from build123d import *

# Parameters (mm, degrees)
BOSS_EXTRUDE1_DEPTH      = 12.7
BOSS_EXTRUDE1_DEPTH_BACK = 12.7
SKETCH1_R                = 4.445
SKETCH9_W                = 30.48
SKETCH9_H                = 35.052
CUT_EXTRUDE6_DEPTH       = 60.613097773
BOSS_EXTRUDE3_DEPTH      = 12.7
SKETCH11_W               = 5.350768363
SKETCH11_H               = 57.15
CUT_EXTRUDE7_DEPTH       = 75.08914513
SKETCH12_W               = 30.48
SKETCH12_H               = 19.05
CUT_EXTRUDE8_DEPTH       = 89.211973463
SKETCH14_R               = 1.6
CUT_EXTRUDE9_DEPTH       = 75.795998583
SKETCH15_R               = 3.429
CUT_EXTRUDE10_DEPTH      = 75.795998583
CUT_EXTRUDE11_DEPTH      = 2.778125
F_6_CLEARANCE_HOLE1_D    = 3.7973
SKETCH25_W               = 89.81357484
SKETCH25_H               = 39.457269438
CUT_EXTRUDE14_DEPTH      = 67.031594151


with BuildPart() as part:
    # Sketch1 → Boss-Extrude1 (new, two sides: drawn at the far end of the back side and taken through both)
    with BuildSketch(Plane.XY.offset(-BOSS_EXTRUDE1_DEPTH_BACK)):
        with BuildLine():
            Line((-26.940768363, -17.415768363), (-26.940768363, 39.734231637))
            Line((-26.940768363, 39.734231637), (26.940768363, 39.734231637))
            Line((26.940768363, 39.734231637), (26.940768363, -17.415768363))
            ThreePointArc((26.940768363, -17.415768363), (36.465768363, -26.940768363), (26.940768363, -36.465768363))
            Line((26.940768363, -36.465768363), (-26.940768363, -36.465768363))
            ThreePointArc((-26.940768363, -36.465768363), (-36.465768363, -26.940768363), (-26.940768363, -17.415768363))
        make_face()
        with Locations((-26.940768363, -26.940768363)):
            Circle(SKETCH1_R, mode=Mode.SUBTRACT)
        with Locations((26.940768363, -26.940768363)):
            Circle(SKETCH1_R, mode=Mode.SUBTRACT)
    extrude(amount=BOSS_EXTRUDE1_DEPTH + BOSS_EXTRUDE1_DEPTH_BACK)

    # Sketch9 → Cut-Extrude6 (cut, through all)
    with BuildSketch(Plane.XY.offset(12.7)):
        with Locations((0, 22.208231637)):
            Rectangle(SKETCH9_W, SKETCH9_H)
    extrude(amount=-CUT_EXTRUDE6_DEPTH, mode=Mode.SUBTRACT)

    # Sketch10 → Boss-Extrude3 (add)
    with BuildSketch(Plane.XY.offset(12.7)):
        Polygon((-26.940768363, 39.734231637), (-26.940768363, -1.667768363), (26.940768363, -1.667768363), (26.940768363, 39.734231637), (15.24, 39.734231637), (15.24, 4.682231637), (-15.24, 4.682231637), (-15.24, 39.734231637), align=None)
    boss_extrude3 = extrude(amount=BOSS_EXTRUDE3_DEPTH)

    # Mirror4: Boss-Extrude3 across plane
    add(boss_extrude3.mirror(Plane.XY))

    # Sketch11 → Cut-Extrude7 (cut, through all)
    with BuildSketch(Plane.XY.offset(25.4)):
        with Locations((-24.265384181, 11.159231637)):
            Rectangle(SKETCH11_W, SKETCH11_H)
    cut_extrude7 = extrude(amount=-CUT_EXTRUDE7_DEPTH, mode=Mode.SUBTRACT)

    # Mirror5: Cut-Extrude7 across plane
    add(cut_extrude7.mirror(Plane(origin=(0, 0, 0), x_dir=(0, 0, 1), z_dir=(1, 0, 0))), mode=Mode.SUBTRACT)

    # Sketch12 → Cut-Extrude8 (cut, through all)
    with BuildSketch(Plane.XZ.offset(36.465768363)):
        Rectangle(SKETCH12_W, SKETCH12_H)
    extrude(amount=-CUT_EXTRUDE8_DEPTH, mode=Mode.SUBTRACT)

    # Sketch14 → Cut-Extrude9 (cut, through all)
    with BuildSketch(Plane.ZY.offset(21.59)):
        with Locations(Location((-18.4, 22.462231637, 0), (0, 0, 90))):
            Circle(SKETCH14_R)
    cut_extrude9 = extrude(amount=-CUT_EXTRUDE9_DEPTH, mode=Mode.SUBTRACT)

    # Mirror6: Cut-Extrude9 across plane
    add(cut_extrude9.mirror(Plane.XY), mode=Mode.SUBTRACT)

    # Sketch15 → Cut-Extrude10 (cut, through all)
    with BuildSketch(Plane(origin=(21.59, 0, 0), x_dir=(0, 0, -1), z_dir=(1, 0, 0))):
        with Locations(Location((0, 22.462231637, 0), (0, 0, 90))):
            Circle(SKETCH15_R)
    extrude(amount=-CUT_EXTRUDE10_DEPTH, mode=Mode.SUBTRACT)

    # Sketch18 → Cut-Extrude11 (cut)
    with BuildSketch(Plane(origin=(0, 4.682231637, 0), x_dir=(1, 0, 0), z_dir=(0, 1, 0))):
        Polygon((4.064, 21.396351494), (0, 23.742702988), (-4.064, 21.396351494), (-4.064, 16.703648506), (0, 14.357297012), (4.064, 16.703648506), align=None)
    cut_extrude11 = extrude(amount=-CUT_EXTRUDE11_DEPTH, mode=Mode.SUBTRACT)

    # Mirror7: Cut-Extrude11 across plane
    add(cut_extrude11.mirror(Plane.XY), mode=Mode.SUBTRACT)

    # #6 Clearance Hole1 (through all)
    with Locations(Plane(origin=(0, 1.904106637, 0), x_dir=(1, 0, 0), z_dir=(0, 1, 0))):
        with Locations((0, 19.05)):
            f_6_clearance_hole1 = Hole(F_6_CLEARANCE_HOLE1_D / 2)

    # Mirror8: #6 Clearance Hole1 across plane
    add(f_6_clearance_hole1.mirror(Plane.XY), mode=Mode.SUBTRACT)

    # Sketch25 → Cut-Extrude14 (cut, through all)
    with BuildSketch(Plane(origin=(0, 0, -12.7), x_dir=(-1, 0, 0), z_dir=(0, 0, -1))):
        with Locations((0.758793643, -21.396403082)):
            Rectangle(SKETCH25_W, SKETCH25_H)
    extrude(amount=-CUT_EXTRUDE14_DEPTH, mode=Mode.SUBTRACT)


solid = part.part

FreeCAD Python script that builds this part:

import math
import FreeCAD as App
import Part
import Sketcher

V = App.Vector
Q = App.Units.Quantity

doc = App.newDocument("Part")
body = doc.addObject("PartDesign::Body", "Body")

# Sketch on XY plane
sketch1 = body.newObject("Sketcher::SketchObject", "Sketch")
sketch1.AttachmentSupport = (doc.getObject("XY_Plane"), [""])
sketch1.MapMode = "FlatFace"
sketch1.addGeometry([
    Part.LineSegment(V(-26.9, 39.7, 0), V(-26.9, -17.4, 0)),  # 0
    Part.ArcOfCircle(Part.Circle(V(-26.9, -26.9, 0), V(0, 0, 1), 9.5), math.radians(90), math.radians(270)),  # 1
    Part.LineSegment(V(-26.9, -36.5, 0), V(26.9, -36.5, 0)),  # 2
    Part.ArcOfCircle(Part.Circle(V(26.9, -26.9, 0), V(0, 0, 1), 9.5), math.radians(-90), math.radians(90)),  # 3
    Part.LineSegment(V(26.9, -17.4, 0), V(26.9, 39.7, 0)),  # 4
    Part.LineSegment(V(26.9, 39.7, 0), V(-26.9, 39.7, 0)),  # 5
    Part.Circle(V(26.9, -26.9, 0), V(0, 0, 1), 4.4),  # 6
    Part.Circle(V(-26.9, -26.9, 0), V(0, 0, 1), 4.4),  # 7
], False)
sketch1.addConstraint([
    Sketcher.Constraint("Coincident", 0, 2, 1, 1),
    Sketcher.Constraint("Tangent", 1, 2, 2, 1),
    Sketcher.Constraint("Tangent", 2, 2, 3, 1),
    Sketcher.Constraint("Coincident", 3, 2, 4, 1),
    Sketcher.Constraint("Coincident", 4, 2, 5, 1),
    Sketcher.Constraint("Coincident", 5, 2, 0, 1),
    Sketcher.Constraint("Vertical", 0),
    Sketcher.Constraint("Horizontal", 2),
    Sketcher.Constraint("Vertical", 4),
    Sketcher.Constraint("Horizontal", 5),
    Sketcher.Constraint("Coincident", 6, 3, 3, 3),
    Sketcher.Constraint("Coincident", 7, 3, 1, 3),
    Sketcher.Constraint("Equal", 1, 3),
    Sketcher.Constraint("Equal", 6, 7),
    Sketcher.Constraint("Vertical", 7, 3, 0, 2),
    Sketcher.Constraint("Vertical", 2, 2, 3, 2),
    Sketcher.Constraint("Diameter", 6, Q("0.35 in")),
    Sketcher.Constraint("Radius", 1, Q("0.375 in")),
    Sketcher.Constraint("DistanceY", 2, 2, 4, 2, Q("3 in")),
    Sketcher.Constraint("DistanceX", 2, 1, 2, 2, 53.881537),
    Sketcher.Constraint("DistanceX", 1, 3, -1, 1, 26.940768),
    Sketcher.Constraint("DistanceY", 1, 3, -1, 1, 26.940768),
])
pad1 = body.newObject("PartDesign::Pad", "Pad")
pad1.Profile = sketch1
pad1.Type = "TwoLengths"
pad1.Length = Q("0.5 in")
pad1.Length2 = Q("0.5 in")

# Sketch on XY plane
sketch2 = body.newObject("Sketcher::SketchObject", "Sketch001")
sketch2.AttachmentSupport = (doc.getObject("XY_Plane"), [""])
sketch2.MapMode = "FlatFace"
sketch2.AttachmentOffset = App.Placement(V(0, 0, 0.5 * 25.4), App.Rotation())
sketch2.addGeometry([
    Part.LineSegment(V(-15, 40, 0), V(-15, 5, 0)),
    Part.LineSegment(V(-15, 5, 0), V(15, 5, 0)),
    Part.LineSegment(V(15, 5, 0), V(15, 40, 0)),
    Part.LineSegment(V(15, 40, 0), V(-15, 40, 0)),
], False)
sketch2.addConstraint([
    Sketcher.Constraint("Coincident", 0, 2, 1, 1),
    Sketcher.Constraint("Coincident", 1, 2, 2, 1),
    Sketcher.Constraint("Coincident", 2, 2, 3, 1),
    Sketcher.Constraint("Coincident", 3, 2, 0, 1),
    Sketcher.Constraint("Vertical", 0),
    Sketcher.Constraint("Horizontal", 1),
    Sketcher.Constraint("Vertical", 2),
    Sketcher.Constraint("Horizontal", 3),
    Sketcher.Constraint("DistanceX", 1, 1, 1, 2, Q("1.2 in")),
    Sketcher.Constraint("DistanceY", 0, 2, 0, 1, Q("1.38 in")),
    Sketcher.Constraint("DistanceX", 0, 2, -1, 1, Q("0.6 in")),
    Sketcher.Constraint("DistanceY", -1, 1, 0, 2, 4.682232),
])
pocket1 = body.newObject("PartDesign::Pocket", "Pocket")
pocket1.Profile = sketch2
pocket1.Type = "ThroughAll"

# Sketch on XY plane
sketch3 = body.newObject("Sketcher::SketchObject", "Sketch002")
sketch3.AttachmentSupport = (doc.getObject("XY_Plane"), [""])
sketch3.MapMode = "FlatFace"
sketch3.AttachmentOffset = App.Placement(V(0, 0, 0.5 * 25.4), App.Rotation())
sketch3.addGeometry([
    Part.LineSegment(V(-27, 40, 0), V(-27, -2, 0)),  # 0
    Part.LineSegment(V(-27, -2, 0), V(27, -2, 0)),  # 1
    Part.LineSegment(V(27, -2, 0), V(27, 40, 0)),  # 2
    Part.LineSegment(V(27, 40, 0), V(15, 40, 0)),  # 3
    Part.LineSegment(V(15, 40, 0), V(15, 5, 0)),  # 4
    Part.LineSegment(V(15, 5, 0), V(-15, 5, 0)),  # 5
    Part.LineSegment(V(-15, 5, 0), V(-15, 40, 0)),  # 6
    Part.LineSegment(V(-15, 40, 0), V(-27, 40, 0)),  # 7
], False)
sketch3.addConstraint([
    Sketcher.Constraint("Coincident", 0, 2, 1, 1),
    Sketcher.Constraint("Coincident", 1, 2, 2, 1),
    Sketcher.Constraint("Coincident", 2, 2, 3, 1),
    Sketcher.Constraint("Coincident", 3, 2, 4, 1),
    Sketcher.Constraint("Coincident", 4, 2, 5, 1),
    Sketcher.Constraint("Coincident", 5, 2, 6, 1),
    Sketcher.Constraint("Coincident", 6, 2, 7, 1),
    Sketcher.Constraint("Coincident", 7, 2, 0, 1),
    Sketcher.Constraint("Vertical", 0),
    Sketcher.Constraint("Horizontal", 1),
    Sketcher.Constraint("Vertical", 2),
    Sketcher.Constraint("Horizontal", 3),
    Sketcher.Constraint("Vertical", 4),
    Sketcher.Constraint("Horizontal", 5),
    Sketcher.Constraint("Vertical", 6),
    Sketcher.Constraint("Horizontal", 7),
    Sketcher.Constraint("Symmetric", 3, 2, 6, 2, -2),
    Sketcher.Constraint("Equal", 3, 7),
    Sketcher.Constraint("DistanceX", 5, 2, 5, 1, Q("1.2 in")),
    Sketcher.Constraint("DistanceY", 0, 2, 0, 1, Q("1.63 in")),
    Sketcher.Constraint("DistanceY", 4, 2, 4, 1, Q("1.38 in")),
    Sketcher.Constraint("DistanceX", 3, 2, 3, 1, 11.700768),
    Sketcher.Constraint("DistanceY", 0, 2, -1, 1, 1.667768),
])
pad2 = body.newObject("PartDesign::Pad", "Pad001")
pad2.Profile = sketch3
pad2.Length = Q("0.5 in")
doc.recompute()

mirrored = body.newObject("PartDesign::Mirrored", "Mirrored")
mirrored.Originals = [pad2]
mirrored.MirrorPlane = (doc.getObject("XY_Plane"), [""])
body.Tip = mirrored

# Sketch on XY plane
sketch4 = body.newObject("Sketcher::SketchObject", "Sketch003")
sketch4.AttachmentSupport = (doc.getObject("XY_Plane"), [""])
sketch4.MapMode = "FlatFace"
sketch4.AttachmentOffset = App.Placement(V(0, 0, 1 * 25.4), App.Rotation())
sketch4.addGeometry([
    Part.LineSegment(V(-27, 40, 0), V(-27, -17, 0)),
    Part.LineSegment(V(-27, -17, 0), V(-22, -17, 0)),
    Part.LineSegment(V(-22, -17, 0), V(-22, 40, 0)),
    Part.LineSegment(V(-22, 40, 0), V(-27, 40, 0)),
], False)
sketch4.addConstraint([
    Sketcher.Constraint("Coincident", 0, 2, 1, 1),
    Sketcher.Constraint("Coincident", 1, 2, 2, 1),
    Sketcher.Constraint("Coincident", 2, 2, 3, 1),
    Sketcher.Constraint("Coincident", 3, 2, 0, 1),
    Sketcher.Constraint("Vertical", 0),
    Sketcher.Constraint("Horizontal", 1),
    Sketcher.Constraint("Vertical", 2),
    Sketcher.Constraint("Horizontal", 3),
    Sketcher.Constraint("DistanceY", 0, 2, 0, 1, Q("2.25 in")),
    Sketcher.Constraint("DistanceX", 1, 2, -1, 1, Q("0.85 in")),
    Sketcher.Constraint("DistanceX", 1, 1, 1, 2, 5.350768),
    Sketcher.Constraint("DistanceY", 0, 2, -1, 1, 17.415768),
])
pocket2 = body.newObject("PartDesign::Pocket", "Pocket001")
pocket2.Profile = sketch4
pocket2.Type = "ThroughAll"
doc.recompute()

mirrored2 = body.newObject("PartDesign::Mirrored", "Mirrored001")
mirrored2.Originals = [pocket2]
mirrored2.MirrorPlane = (doc.getObject("YZ_Plane"), [""])
body.Tip = mirrored2

# Sketch on XZ plane
sketch5 = body.newObject("Sketcher::SketchObject", "Sketch004")
sketch5.AttachmentSupport = (doc.getObject("XZ_Plane"), [""])
sketch5.MapMode = "FlatFace"
sketch5.AttachmentOffset = App.Placement(V(0, 0, 36.465768), App.Rotation())
sketch5.addGeometry([
    Part.LineSegment(V(-15, 10, 0), V(-15, -10, 0)),
    Part.LineSegment(V(-15, -10, 0), V(15, -10, 0)),
    Part.LineSegment(V(15, -10, 0), V(15, 10, 0)),
    Part.LineSegment(V(15, 10, 0), V(-15, 10, 0)),
], False)
sketch5.addConstraint([
    Sketcher.Constraint("Coincident", 0, 2, 1, 1),
    Sketcher.Constraint("Coincident", 1, 2, 2, 1),
    Sketcher.Constraint("Coincident", 2, 2, 3, 1),
    Sketcher.Constraint("Coincident", 3, 2, 0, 1),
    Sketcher.Constraint("Vertical", 0),
    Sketcher.Constraint("Horizontal", 1),
    Sketcher.Constraint("Vertical", 2),
    Sketcher.Constraint("Horizontal", 3),
    Sketcher.Constraint("Symmetric", 0, 2, 2, 2, -1, 1),
    Sketcher.Constraint("DistanceX", 1, 1, 1, 2, Q("1.2 in")),
    Sketcher.Constraint("DistanceY", 0, 2, 0, 1, Q("0.75 in")),
])
pocket3 = body.newObject("PartDesign::Pocket", "Pocket002")
pocket3.Profile = sketch5
pocket3.Type = "ThroughAll"

# Sketch on YZ plane
sketch6 = body.newObject("Sketcher::SketchObject", "Sketch005")
sketch6.AttachmentSupport = (doc.getObject("YZ_Plane"), [""])
sketch6.MapMode = "FlatFace"
sketch6.AttachmentOffset = App.Placement(V(0, 0, -0.85 * 25.4), App.Rotation())
sketch6.addGeometry(Part.Circle(V(22.5, -18.4, 0), V(0, 0, 1), 1.6), False)
sketch6.addConstraint([
    Sketcher.Constraint("Diameter", 0, 3.2),
    Sketcher.Constraint("DistanceY", 0, 3, -1, 1, 18.4),
    Sketcher.Constraint("DistanceX", -1, 1, 0, 3, 22.462232),
])
pocket4 = body.newObject("PartDesign::Pocket", "Pocket003")
pocket4.Profile = sketch6
pocket4.Type = "ThroughAll"
pocket4.Reversed = True
doc.recompute()

mirrored3 = body.newObject("PartDesign::Mirrored", "Mirrored002")
mirrored3.Originals = [pocket4]
mirrored3.MirrorPlane = (doc.getObject("XY_Plane"), [""])
body.Tip = mirrored3

# Sketch on YZ plane
sketch7 = body.newObject("Sketcher::SketchObject", "Sketch006")
sketch7.AttachmentSupport = (doc.getObject("YZ_Plane"), [""])
sketch7.MapMode = "FlatFace"
sketch7.AttachmentOffset = App.Placement(V(0, 0, 0.85 * 25.4), App.Rotation())
sketch7.addGeometry(Part.Circle(V(22.5, 0, 0), V(0, 0, 1), 3.4), False)
sketch7.addConstraint([
    Sketcher.Constraint("PointOnObject", 0, 3, -1),
    Sketcher.Constraint("Diameter", 0, Q("0.27 in")),
    Sketcher.Constraint("DistanceX", -1, 1, 0, 3, 22.462232),
])
pocket5 = body.newObject("PartDesign::Pocket", "Pocket004")
pocket5.Profile = sketch7
pocket5.Type = "ThroughAll"

# Sketch on XZ plane
sketch8 = body.newObject("Sketcher::SketchObject", "Sketch007")
sketch8.AttachmentSupport = (doc.getObject("XZ_Plane"), [""])
sketch8.MapMode = "FlatFace"
sketch8.AttachmentOffset = App.Placement(V(0, 0, -4.682232), App.Rotation())
sketch8.addGeometry([
    Part.LineSegment(V(4.1, -21.4, 0), V(0, -23.7, 0)),  # 0
    Part.LineSegment(V(0, -23.7, 0), V(-4.1, -21.4, 0)),  # 1
    Part.LineSegment(V(-4.1, -21.4, 0), V(-4.1, -16.7, 0)),  # 2
    Part.LineSegment(V(-4.1, -16.7, 0), V(0, -14.4, 0)),  # 3
    Part.LineSegment(V(0, -14.4, 0), V(4.1, -16.7, 0)),  # 4
    Part.LineSegment(V(4.1, -16.7, 0), V(4.1, -21.4, 0)),  # 5
], False)
sketch8.addConstraint([
    Sketcher.Constraint("Coincident", 0, 2, 1, 1),
    Sketcher.Constraint("Coincident", 1, 2, 2, 1),
    Sketcher.Constraint("Coincident", 2, 2, 3, 1),
    Sketcher.Constraint("Coincident", 3, 2, 4, 1),
    Sketcher.Constraint("Coincident", 4, 2, 5, 1),
    Sketcher.Constraint("Coincident", 5, 2, 0, 1),
    Sketcher.Constraint("Vertical", 2),
    Sketcher.Constraint("Vertical", 5),
    Sketcher.Constraint("Symmetric", 2, 2, 4, 2, -2),
    Sketcher.Constraint("PointOnObject", 0, 2, -2),
    Sketcher.Constraint("PointOnObject", 3, 2, -2),
    Sketcher.Constraint("Parallel", 0, 3),
    Sketcher.Constraint("Parallel", 1, 4),
    Sketcher.Constraint("Angle", 0, Q("-150 deg")),
    Sketcher.Constraint("DistanceX", 1, 2, -1, 1, Q("0.16 in")),
    Sketcher.Constraint("DistanceY", 2, 1, 2, 2, 4.692703),
    Sketcher.Constraint("DistanceY", 1, 2, -1, 1, 21.396351),
])
pocket6 = body.newObject("PartDesign::Pocket", "Pocket005")
pocket6.Profile = sketch8
pocket6.Length = Q("0.109375 in")
pocket6.Reversed = True
doc.recompute()

mirrored4 = body.newObject("PartDesign::Mirrored", "Mirrored003")
mirrored4.Originals = [pocket6]
mirrored4.MirrorPlane = (doc.getObject("XY_Plane"), [""])
body.Tip = mirrored4

# Sketch on XZ plane
sketch9 = body.newObject("Sketcher::SketchObject", "Sketch008")
sketch9.AttachmentSupport = (doc.getObject("XZ_Plane"), [""])
sketch9.MapMode = "FlatFace"
sketch9.AttachmentOffset = App.Placement(V(0, 0, -1.904107), App.Rotation())
sketch9.addGeometry(Part.Circle(V(0, -19.1, 0), V(0, 0, 1), 1.9), False)
sketch9.addConstraint([
    Sketcher.Constraint("PointOnObject", 0, 3, -2),
    Sketcher.Constraint("Diameter", 0, Q("0.1495 in")),
    Sketcher.Constraint("DistanceY", 0, 3, -1, 1, Q("0.75 in")),
])
doc.recompute()
hole = body.newObject("PartDesign::Hole", "Hole")
hole.Profile = sketch9
hole.ThreadType = "None"
hole.Diameter = Q("0.1495 in")
hole.DepthType = "ThroughAll"
hole.Reversed = True
doc.recompute()

mirrored5 = body.newObject("PartDesign::Mirrored", "Mirrored004")
mirrored5.Originals = [hole]
mirrored5.MirrorPlane = (doc.getObject("XY_Plane"), [""])
body.Tip = mirrored5

# Sketch on XY plane
sketch10 = body.newObject("Sketcher::SketchObject", "Sketch009")
sketch10.AttachmentSupport = (doc.getObject("XY_Plane"), [""])
sketch10.MapMode = "FlatFace"
sketch10.AttachmentOffset = App.Placement(V(0, 0, -0.5 * 25.4), App.Rotation())
sketch10.addGeometry([
    Part.LineSegment(V(44, -2, 0), V(44, -41, 0)),
    Part.LineSegment(V(44, -41, 0), V(-46, -41, 0)),
    Part.LineSegment(V(-46, -41, 0), V(-46, -2, 0)),
    Part.LineSegment(V(-46, -2, 0), V(44, -2, 0)),
], False)
sketch10.addConstraint([
    Sketcher.Constraint("Coincident", 0, 2, 1, 1),
    Sketcher.Constraint("Coincident", 1, 2, 2, 1),
    Sketcher.Constraint("Coincident", 2, 2, 3, 1),
    Sketcher.Constraint("Coincident", 3, 2, 0, 1),
    Sketcher.Constraint("Vertical", 0),
    Sketcher.Constraint("Horizontal", 1),
    Sketcher.Constraint("Vertical", 2),
    Sketcher.Constraint("Horizontal", 3),
    Sketcher.Constraint("DistanceY", 0, 2, 0, 1, 39.457269),
    Sketcher.Constraint("DistanceX", 1, 2, 1, 1, 89.813575),
    Sketcher.Constraint("DistanceX", 1, 2, -1, 1, 45.665581),
    Sketcher.Constraint("DistanceY", 2, 2, -1, 1, 1.667768),
])
pocket7 = body.newObject("PartDesign::Pocket", "Pocket006")
pocket7.Profile = sketch10
pocket7.Type = "ThroughAll"
pocket7.Reversed = True

doc.recompute()
